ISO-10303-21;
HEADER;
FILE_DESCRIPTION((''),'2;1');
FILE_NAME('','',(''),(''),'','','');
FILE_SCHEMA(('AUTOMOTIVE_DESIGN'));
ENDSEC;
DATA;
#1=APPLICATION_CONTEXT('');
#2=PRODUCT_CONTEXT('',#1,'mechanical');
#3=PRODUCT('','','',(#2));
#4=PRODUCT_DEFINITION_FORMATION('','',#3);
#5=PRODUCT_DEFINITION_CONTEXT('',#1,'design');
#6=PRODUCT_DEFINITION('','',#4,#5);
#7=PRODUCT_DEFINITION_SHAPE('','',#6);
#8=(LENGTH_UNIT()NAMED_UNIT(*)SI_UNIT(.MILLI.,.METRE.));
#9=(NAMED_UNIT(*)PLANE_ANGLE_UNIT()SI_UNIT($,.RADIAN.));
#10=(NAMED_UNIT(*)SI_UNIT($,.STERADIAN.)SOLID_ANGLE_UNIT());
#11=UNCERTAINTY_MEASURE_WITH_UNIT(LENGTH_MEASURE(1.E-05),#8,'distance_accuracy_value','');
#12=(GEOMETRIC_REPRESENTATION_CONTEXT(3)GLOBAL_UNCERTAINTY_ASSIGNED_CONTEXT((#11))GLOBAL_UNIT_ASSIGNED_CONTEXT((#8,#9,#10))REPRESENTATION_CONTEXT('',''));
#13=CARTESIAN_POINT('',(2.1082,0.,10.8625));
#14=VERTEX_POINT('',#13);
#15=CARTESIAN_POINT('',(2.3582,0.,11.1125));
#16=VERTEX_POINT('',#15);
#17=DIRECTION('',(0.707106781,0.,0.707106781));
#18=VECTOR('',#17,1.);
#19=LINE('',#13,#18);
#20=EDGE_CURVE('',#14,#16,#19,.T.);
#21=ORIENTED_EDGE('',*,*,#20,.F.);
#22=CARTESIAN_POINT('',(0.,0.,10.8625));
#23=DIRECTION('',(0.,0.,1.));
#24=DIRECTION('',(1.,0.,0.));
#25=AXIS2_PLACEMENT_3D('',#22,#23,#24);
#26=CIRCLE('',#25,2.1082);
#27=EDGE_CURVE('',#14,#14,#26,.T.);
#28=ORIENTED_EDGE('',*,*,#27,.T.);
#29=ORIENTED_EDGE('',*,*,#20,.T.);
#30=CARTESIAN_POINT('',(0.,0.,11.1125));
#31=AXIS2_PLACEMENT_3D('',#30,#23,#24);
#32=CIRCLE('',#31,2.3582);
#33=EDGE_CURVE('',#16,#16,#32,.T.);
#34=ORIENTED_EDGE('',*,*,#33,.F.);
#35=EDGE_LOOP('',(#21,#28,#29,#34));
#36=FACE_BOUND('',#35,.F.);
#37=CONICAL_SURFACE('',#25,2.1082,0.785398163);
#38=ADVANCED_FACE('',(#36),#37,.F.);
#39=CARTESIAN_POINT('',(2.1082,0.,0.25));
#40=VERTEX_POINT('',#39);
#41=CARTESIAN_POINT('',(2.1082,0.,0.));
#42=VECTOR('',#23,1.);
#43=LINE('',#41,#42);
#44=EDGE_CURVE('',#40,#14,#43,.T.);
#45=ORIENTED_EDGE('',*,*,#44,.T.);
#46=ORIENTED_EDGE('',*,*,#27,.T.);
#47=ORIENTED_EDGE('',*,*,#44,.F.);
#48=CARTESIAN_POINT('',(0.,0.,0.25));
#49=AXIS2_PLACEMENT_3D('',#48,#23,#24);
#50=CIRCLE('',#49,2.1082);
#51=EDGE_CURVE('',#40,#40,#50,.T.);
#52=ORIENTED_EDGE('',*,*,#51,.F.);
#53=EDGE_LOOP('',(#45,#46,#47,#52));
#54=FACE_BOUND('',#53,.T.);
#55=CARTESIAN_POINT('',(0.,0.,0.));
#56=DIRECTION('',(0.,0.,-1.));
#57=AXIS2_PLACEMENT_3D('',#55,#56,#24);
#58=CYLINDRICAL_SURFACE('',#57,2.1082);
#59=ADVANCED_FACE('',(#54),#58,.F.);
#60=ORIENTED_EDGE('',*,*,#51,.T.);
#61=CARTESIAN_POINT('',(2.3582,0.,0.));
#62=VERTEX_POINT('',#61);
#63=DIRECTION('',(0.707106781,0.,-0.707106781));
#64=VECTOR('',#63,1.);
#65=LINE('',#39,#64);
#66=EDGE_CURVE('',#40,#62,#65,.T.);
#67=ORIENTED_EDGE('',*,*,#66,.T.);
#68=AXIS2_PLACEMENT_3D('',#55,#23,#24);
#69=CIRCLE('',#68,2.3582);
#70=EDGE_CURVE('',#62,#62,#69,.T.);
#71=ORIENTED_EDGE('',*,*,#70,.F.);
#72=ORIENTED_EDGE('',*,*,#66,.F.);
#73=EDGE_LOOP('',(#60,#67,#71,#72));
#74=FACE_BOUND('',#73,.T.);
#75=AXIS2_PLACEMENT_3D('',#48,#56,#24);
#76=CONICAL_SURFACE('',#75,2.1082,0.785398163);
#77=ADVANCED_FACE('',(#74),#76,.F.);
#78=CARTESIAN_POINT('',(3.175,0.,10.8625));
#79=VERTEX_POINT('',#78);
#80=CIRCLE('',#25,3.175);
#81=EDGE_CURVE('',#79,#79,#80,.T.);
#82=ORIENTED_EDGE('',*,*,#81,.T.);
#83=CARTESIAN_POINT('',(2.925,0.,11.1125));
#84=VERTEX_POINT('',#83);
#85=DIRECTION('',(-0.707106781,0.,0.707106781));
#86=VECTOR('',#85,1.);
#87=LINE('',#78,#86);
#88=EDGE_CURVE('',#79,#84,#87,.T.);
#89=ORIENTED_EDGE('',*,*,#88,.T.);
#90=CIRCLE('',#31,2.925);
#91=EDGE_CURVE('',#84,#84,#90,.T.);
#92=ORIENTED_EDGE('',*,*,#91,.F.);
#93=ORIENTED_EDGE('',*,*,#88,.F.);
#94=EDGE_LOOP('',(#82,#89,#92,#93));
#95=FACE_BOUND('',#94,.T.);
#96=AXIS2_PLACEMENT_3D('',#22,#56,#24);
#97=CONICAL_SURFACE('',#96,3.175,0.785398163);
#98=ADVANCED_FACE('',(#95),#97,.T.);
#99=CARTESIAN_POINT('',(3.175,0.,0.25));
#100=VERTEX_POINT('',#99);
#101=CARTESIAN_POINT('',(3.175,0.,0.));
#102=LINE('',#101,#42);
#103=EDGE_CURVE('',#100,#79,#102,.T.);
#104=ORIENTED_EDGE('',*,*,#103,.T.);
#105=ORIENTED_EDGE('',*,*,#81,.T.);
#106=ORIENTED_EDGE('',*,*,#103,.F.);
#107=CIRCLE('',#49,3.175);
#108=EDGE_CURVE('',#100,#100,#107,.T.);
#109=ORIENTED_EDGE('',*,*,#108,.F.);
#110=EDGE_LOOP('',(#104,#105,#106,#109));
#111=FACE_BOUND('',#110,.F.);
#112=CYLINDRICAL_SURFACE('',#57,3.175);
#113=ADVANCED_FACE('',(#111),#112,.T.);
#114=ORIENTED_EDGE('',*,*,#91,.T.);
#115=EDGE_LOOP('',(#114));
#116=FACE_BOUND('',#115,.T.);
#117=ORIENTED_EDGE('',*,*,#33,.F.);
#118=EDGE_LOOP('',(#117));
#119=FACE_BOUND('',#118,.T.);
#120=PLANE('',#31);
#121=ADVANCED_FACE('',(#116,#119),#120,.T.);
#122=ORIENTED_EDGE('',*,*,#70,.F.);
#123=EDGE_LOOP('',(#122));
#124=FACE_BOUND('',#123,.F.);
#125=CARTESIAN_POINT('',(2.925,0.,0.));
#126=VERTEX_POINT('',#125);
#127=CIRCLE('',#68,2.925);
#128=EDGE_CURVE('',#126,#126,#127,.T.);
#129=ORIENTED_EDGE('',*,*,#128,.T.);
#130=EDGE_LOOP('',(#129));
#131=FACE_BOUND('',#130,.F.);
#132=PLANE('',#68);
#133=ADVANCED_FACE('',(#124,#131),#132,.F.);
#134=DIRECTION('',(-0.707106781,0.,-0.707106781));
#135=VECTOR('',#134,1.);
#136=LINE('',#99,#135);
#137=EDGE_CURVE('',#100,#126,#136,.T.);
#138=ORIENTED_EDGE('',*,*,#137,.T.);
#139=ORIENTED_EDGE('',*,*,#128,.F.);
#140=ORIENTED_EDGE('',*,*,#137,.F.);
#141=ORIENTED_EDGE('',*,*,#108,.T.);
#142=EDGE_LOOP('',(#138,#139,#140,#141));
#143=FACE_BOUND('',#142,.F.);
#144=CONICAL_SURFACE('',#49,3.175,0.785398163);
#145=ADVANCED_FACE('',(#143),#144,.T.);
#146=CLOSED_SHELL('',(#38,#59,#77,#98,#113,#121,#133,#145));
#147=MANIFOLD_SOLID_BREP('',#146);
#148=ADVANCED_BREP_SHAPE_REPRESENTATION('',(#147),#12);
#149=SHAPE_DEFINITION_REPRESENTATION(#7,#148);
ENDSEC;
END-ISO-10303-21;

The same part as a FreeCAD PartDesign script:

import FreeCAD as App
import Part
import Sketcher

V = App.Vector
Q = App.Units.Quantity


def edges_at(feature, points):
    """Names of the edges that pass closest to the given points."""
    edges = feature.Shape.Edges
    near = lambda p: min(range(len(edges)), key=lambda i: edges[i].distToShape(Part.Vertex(*p))[0])
    return sorted({f"Edge{near(p) + 1}" for p in points})

doc = App.newDocument("Part")
body = doc.addObject("PartDesign::Body", "Body")

# Sketch on XY plane
sketch1 = body.newObject("Sketcher::SketchObject", "Sketch")
sketch1.AttachmentSupport = (doc.getObject("XY_Plane"), [""])
sketch1.MapMode = "FlatFace"
sketch1.addGeometry([
    Part.Circle(V(0, 0, 0), V(0, 0, 1), 3.2),
    Part.Circle(V(0, 0, 0), V(0, 0, 1), 2.1),
], False)
sketch1.addConstraint([
    Sketcher.Constraint("Coincident", 0, 3, -1, 1),
    Sketcher.Constraint("Coincident", 1, 3, -1, 1),
    Sketcher.Constraint("Diameter", 0, Q("0.25 in")),
    Sketcher.Constraint("Diameter", 1, Q("0.166 in")),
])
pad1 = body.newObject("PartDesign::Pad", "Pad")
pad1.Profile = sketch1
pad1.Length = Q("0.4375 in")
doc.recompute()

chamfer = body.newObject("PartDesign::Chamfer", "Chamfer")
chamfer.Base = (pad1, edges_at(pad1, [
    (-2.108, 0, 11.113),
    (-3.175, 0, 11.113),
    (-3.175, 0, 0),
    (-2.108, 0, 0),
]))
chamfer.Size = 0.25

doc.recompute()
